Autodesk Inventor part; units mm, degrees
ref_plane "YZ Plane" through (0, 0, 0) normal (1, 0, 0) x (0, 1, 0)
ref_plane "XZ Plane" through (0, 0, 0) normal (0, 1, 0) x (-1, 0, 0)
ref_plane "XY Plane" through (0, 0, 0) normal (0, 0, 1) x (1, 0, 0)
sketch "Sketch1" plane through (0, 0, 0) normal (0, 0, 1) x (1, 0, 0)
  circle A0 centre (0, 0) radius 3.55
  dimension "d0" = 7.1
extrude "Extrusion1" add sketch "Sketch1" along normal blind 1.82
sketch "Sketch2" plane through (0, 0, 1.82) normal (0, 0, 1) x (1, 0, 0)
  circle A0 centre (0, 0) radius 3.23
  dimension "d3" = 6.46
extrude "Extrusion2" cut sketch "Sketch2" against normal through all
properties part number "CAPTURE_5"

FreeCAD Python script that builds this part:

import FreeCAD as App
import Part
import Sketcher

V = App.Vector
Q = App.Units.Quantity

doc = App.newDocument("Part")
body = doc.addObject("PartDesign::Body", "Body")

sketch1 = body.newObject("Sketcher::SketchObject", "Sketch")
sketch1.AttachmentSupport = (doc.getObject("XY_Plane"), [""])
sketch1.MapMode = "FlatFace"
sketch1.addGeometry(Part.Circle(V(0, 0, 0), V(0, 0, 1), 3.55), False)
sketch1.addConstraint(Sketcher.Constraint("Coincident", 0, 3, -1, 1))
sketch1.addConstraint(Sketcher.Constraint("Diameter", 0, Q("7.1 mm")))
pad1 = body.newObject("PartDesign::Pad", "Pad")
pad1.Profile = sketch1
pad1.Length = 1.82

sketch2 = body.newObject("Sketcher::SketchObject", "Sketch001")
sketch2.AttachmentSupport = (doc.getObject("XY_Plane"), [""])
sketch2.MapMode = "FlatFace"
sketch2.AttachmentOffset = App.Placement(V(0, 0, 1.82), App.Rotation())
sketch2.addGeometry(Part.Circle(V(0, 0, 0), V(0, 0, 1), 3.23), False)
sketch2.addConstraint(Sketcher.Constraint("Coincident", 0, 3, -1, 1))
sketch2.addConstraint(Sketcher.Constraint("Diameter", 0, Q("6.46 mm")))
pocket1 = body.newObject("PartDesign::Pocket", "Pocket")
pocket1.Profile = sketch2
pocket1.Type = "ThroughAll"

doc.recompute()
